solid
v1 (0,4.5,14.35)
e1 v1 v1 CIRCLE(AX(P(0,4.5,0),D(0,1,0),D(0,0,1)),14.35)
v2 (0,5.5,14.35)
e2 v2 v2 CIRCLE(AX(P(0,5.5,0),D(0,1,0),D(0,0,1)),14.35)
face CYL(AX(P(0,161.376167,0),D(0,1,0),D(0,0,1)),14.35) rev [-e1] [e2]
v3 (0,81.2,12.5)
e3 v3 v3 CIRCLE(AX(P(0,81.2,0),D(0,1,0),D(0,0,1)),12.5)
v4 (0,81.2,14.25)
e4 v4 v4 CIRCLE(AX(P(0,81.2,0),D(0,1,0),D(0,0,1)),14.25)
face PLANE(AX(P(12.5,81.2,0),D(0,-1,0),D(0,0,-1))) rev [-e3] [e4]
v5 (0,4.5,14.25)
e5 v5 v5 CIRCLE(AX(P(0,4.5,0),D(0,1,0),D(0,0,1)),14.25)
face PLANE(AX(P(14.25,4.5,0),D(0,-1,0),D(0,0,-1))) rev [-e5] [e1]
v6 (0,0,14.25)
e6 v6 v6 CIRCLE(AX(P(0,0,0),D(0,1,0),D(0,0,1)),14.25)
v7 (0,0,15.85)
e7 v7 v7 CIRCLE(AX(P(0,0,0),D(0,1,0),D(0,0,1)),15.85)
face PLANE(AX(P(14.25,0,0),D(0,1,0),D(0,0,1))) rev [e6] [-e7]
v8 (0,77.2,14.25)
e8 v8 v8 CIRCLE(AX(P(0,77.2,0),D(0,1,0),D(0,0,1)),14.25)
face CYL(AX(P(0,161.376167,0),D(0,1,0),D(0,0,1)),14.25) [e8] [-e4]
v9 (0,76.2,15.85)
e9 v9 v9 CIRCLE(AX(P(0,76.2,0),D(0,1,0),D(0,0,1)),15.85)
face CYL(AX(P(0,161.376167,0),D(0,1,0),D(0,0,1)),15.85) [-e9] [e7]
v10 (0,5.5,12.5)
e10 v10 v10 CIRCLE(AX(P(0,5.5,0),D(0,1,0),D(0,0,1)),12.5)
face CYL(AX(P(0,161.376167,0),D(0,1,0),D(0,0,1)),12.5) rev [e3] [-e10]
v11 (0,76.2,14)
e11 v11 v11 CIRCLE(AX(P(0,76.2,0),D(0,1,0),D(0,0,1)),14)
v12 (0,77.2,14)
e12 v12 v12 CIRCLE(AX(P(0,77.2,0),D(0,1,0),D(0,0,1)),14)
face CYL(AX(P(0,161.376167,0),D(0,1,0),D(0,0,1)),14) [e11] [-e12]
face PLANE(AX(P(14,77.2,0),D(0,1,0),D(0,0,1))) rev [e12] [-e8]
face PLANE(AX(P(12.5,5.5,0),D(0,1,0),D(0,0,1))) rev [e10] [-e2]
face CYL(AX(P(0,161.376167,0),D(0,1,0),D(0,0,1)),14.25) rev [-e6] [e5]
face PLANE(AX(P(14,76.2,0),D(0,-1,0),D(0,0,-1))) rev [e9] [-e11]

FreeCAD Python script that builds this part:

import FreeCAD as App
import Part
import Sketcher

V = App.Vector
Q = App.Units.Quantity


def add_polygon(sketch, points):
    """Adds a closed chain of lines whose ends are joined by coincident constraints."""
    first, n = sketch.GeometryCount, len(points)
    for a, b in zip(points, points[1:] + points[:1]):
        sketch.addGeometry(Part.LineSegment(App.Vector(*a, 0), App.Vector(*b, 0)), False)
    for i in range(n):
        sketch.addConstraint(Sketcher.Constraint("Coincident", first + i, 2, first + (i + 1) % n, 1))

doc = App.newDocument("Part")
body = doc.addObject("PartDesign::Body", "Body")

sketch1 = doc.addObject("Sketcher::SketchObject", "Sketch")
body.addObject(sketch1)
sketch1.AttachmentSupport = (doc.XY_Plane, [""])
sketch1.MapMode = "FlatFace"
add_polygon(sketch1, [(14.25, 4.5), (14.25, 0), (15.85, 0), (15.85, 76.2), (14, 76.2), (14, 77.2), (14.25, 77.2), (14.25, 81.2), (12.5, 81.2), (12.5, 5.5), (14.35, 5.5), (14.35, 4.5)])
sketch1.addConstraint([
    Sketcher.Constraint("Vertical", 0),
    Sketcher.Constraint("Horizontal", 1),
    Sketcher.Constraint("Vertical", 2),
    Sketcher.Constraint("Horizontal", 3),
    Sketcher.Constraint("Vertical", 4),
    Sketcher.Constraint("Horizontal", 5),
    Sketcher.Constraint("Vertical", 6),
    Sketcher.Constraint("Horizontal", 7),
    Sketcher.Constraint("Vertical", 8),
    Sketcher.Constraint("Horizontal", 9),
    Sketcher.Constraint("Vertical", 10),
    Sketcher.Constraint("Horizontal", 11),
    Sketcher.Constraint("PointOnObject", 0, 2, -1),
    Sketcher.Constraint("Vertical", 0, 2, 5, 2),
    Sketcher.Constraint("Equal", 3, 9),
    Sketcher.Constraint("Equal", 4, 10),
    Sketcher.Constraint("DistanceY", 4, 1, 4, 2, Q("1 mm")),
    Sketcher.Constraint("DistanceY", 6, 1, 6, 2, Q("4 mm")),
    Sketcher.Constraint("DistanceX", 1, 1, 1, 2, Q("1.6 mm")),
    Sketcher.Constraint("DistanceX", 11, 2, 11, 1, Q("0.1 mm")),
    Sketcher.Constraint("DistanceY", 0, 2, 0, 1, Q("4.5 mm")),
    Sketcher.Constraint("DistanceY", 2, 1, 2, 2, Q("76.2 mm")),
    Sketcher.Constraint("DistanceX", -1, 1, 3, 2, Q("14 mm")),
    Sketcher.Constraint("DistanceX", 3, 2, 3, 1, Q("1.85 mm")),
])
revolution = doc.addObject("PartDesign::Revolution", "Revolution")
body.addObject(revolution)
revolution.Profile = sketch1
revolution.ReferenceAxis = (sketch1, ["V_Axis"])
revolution.Angle = 360

doc.recompute()
